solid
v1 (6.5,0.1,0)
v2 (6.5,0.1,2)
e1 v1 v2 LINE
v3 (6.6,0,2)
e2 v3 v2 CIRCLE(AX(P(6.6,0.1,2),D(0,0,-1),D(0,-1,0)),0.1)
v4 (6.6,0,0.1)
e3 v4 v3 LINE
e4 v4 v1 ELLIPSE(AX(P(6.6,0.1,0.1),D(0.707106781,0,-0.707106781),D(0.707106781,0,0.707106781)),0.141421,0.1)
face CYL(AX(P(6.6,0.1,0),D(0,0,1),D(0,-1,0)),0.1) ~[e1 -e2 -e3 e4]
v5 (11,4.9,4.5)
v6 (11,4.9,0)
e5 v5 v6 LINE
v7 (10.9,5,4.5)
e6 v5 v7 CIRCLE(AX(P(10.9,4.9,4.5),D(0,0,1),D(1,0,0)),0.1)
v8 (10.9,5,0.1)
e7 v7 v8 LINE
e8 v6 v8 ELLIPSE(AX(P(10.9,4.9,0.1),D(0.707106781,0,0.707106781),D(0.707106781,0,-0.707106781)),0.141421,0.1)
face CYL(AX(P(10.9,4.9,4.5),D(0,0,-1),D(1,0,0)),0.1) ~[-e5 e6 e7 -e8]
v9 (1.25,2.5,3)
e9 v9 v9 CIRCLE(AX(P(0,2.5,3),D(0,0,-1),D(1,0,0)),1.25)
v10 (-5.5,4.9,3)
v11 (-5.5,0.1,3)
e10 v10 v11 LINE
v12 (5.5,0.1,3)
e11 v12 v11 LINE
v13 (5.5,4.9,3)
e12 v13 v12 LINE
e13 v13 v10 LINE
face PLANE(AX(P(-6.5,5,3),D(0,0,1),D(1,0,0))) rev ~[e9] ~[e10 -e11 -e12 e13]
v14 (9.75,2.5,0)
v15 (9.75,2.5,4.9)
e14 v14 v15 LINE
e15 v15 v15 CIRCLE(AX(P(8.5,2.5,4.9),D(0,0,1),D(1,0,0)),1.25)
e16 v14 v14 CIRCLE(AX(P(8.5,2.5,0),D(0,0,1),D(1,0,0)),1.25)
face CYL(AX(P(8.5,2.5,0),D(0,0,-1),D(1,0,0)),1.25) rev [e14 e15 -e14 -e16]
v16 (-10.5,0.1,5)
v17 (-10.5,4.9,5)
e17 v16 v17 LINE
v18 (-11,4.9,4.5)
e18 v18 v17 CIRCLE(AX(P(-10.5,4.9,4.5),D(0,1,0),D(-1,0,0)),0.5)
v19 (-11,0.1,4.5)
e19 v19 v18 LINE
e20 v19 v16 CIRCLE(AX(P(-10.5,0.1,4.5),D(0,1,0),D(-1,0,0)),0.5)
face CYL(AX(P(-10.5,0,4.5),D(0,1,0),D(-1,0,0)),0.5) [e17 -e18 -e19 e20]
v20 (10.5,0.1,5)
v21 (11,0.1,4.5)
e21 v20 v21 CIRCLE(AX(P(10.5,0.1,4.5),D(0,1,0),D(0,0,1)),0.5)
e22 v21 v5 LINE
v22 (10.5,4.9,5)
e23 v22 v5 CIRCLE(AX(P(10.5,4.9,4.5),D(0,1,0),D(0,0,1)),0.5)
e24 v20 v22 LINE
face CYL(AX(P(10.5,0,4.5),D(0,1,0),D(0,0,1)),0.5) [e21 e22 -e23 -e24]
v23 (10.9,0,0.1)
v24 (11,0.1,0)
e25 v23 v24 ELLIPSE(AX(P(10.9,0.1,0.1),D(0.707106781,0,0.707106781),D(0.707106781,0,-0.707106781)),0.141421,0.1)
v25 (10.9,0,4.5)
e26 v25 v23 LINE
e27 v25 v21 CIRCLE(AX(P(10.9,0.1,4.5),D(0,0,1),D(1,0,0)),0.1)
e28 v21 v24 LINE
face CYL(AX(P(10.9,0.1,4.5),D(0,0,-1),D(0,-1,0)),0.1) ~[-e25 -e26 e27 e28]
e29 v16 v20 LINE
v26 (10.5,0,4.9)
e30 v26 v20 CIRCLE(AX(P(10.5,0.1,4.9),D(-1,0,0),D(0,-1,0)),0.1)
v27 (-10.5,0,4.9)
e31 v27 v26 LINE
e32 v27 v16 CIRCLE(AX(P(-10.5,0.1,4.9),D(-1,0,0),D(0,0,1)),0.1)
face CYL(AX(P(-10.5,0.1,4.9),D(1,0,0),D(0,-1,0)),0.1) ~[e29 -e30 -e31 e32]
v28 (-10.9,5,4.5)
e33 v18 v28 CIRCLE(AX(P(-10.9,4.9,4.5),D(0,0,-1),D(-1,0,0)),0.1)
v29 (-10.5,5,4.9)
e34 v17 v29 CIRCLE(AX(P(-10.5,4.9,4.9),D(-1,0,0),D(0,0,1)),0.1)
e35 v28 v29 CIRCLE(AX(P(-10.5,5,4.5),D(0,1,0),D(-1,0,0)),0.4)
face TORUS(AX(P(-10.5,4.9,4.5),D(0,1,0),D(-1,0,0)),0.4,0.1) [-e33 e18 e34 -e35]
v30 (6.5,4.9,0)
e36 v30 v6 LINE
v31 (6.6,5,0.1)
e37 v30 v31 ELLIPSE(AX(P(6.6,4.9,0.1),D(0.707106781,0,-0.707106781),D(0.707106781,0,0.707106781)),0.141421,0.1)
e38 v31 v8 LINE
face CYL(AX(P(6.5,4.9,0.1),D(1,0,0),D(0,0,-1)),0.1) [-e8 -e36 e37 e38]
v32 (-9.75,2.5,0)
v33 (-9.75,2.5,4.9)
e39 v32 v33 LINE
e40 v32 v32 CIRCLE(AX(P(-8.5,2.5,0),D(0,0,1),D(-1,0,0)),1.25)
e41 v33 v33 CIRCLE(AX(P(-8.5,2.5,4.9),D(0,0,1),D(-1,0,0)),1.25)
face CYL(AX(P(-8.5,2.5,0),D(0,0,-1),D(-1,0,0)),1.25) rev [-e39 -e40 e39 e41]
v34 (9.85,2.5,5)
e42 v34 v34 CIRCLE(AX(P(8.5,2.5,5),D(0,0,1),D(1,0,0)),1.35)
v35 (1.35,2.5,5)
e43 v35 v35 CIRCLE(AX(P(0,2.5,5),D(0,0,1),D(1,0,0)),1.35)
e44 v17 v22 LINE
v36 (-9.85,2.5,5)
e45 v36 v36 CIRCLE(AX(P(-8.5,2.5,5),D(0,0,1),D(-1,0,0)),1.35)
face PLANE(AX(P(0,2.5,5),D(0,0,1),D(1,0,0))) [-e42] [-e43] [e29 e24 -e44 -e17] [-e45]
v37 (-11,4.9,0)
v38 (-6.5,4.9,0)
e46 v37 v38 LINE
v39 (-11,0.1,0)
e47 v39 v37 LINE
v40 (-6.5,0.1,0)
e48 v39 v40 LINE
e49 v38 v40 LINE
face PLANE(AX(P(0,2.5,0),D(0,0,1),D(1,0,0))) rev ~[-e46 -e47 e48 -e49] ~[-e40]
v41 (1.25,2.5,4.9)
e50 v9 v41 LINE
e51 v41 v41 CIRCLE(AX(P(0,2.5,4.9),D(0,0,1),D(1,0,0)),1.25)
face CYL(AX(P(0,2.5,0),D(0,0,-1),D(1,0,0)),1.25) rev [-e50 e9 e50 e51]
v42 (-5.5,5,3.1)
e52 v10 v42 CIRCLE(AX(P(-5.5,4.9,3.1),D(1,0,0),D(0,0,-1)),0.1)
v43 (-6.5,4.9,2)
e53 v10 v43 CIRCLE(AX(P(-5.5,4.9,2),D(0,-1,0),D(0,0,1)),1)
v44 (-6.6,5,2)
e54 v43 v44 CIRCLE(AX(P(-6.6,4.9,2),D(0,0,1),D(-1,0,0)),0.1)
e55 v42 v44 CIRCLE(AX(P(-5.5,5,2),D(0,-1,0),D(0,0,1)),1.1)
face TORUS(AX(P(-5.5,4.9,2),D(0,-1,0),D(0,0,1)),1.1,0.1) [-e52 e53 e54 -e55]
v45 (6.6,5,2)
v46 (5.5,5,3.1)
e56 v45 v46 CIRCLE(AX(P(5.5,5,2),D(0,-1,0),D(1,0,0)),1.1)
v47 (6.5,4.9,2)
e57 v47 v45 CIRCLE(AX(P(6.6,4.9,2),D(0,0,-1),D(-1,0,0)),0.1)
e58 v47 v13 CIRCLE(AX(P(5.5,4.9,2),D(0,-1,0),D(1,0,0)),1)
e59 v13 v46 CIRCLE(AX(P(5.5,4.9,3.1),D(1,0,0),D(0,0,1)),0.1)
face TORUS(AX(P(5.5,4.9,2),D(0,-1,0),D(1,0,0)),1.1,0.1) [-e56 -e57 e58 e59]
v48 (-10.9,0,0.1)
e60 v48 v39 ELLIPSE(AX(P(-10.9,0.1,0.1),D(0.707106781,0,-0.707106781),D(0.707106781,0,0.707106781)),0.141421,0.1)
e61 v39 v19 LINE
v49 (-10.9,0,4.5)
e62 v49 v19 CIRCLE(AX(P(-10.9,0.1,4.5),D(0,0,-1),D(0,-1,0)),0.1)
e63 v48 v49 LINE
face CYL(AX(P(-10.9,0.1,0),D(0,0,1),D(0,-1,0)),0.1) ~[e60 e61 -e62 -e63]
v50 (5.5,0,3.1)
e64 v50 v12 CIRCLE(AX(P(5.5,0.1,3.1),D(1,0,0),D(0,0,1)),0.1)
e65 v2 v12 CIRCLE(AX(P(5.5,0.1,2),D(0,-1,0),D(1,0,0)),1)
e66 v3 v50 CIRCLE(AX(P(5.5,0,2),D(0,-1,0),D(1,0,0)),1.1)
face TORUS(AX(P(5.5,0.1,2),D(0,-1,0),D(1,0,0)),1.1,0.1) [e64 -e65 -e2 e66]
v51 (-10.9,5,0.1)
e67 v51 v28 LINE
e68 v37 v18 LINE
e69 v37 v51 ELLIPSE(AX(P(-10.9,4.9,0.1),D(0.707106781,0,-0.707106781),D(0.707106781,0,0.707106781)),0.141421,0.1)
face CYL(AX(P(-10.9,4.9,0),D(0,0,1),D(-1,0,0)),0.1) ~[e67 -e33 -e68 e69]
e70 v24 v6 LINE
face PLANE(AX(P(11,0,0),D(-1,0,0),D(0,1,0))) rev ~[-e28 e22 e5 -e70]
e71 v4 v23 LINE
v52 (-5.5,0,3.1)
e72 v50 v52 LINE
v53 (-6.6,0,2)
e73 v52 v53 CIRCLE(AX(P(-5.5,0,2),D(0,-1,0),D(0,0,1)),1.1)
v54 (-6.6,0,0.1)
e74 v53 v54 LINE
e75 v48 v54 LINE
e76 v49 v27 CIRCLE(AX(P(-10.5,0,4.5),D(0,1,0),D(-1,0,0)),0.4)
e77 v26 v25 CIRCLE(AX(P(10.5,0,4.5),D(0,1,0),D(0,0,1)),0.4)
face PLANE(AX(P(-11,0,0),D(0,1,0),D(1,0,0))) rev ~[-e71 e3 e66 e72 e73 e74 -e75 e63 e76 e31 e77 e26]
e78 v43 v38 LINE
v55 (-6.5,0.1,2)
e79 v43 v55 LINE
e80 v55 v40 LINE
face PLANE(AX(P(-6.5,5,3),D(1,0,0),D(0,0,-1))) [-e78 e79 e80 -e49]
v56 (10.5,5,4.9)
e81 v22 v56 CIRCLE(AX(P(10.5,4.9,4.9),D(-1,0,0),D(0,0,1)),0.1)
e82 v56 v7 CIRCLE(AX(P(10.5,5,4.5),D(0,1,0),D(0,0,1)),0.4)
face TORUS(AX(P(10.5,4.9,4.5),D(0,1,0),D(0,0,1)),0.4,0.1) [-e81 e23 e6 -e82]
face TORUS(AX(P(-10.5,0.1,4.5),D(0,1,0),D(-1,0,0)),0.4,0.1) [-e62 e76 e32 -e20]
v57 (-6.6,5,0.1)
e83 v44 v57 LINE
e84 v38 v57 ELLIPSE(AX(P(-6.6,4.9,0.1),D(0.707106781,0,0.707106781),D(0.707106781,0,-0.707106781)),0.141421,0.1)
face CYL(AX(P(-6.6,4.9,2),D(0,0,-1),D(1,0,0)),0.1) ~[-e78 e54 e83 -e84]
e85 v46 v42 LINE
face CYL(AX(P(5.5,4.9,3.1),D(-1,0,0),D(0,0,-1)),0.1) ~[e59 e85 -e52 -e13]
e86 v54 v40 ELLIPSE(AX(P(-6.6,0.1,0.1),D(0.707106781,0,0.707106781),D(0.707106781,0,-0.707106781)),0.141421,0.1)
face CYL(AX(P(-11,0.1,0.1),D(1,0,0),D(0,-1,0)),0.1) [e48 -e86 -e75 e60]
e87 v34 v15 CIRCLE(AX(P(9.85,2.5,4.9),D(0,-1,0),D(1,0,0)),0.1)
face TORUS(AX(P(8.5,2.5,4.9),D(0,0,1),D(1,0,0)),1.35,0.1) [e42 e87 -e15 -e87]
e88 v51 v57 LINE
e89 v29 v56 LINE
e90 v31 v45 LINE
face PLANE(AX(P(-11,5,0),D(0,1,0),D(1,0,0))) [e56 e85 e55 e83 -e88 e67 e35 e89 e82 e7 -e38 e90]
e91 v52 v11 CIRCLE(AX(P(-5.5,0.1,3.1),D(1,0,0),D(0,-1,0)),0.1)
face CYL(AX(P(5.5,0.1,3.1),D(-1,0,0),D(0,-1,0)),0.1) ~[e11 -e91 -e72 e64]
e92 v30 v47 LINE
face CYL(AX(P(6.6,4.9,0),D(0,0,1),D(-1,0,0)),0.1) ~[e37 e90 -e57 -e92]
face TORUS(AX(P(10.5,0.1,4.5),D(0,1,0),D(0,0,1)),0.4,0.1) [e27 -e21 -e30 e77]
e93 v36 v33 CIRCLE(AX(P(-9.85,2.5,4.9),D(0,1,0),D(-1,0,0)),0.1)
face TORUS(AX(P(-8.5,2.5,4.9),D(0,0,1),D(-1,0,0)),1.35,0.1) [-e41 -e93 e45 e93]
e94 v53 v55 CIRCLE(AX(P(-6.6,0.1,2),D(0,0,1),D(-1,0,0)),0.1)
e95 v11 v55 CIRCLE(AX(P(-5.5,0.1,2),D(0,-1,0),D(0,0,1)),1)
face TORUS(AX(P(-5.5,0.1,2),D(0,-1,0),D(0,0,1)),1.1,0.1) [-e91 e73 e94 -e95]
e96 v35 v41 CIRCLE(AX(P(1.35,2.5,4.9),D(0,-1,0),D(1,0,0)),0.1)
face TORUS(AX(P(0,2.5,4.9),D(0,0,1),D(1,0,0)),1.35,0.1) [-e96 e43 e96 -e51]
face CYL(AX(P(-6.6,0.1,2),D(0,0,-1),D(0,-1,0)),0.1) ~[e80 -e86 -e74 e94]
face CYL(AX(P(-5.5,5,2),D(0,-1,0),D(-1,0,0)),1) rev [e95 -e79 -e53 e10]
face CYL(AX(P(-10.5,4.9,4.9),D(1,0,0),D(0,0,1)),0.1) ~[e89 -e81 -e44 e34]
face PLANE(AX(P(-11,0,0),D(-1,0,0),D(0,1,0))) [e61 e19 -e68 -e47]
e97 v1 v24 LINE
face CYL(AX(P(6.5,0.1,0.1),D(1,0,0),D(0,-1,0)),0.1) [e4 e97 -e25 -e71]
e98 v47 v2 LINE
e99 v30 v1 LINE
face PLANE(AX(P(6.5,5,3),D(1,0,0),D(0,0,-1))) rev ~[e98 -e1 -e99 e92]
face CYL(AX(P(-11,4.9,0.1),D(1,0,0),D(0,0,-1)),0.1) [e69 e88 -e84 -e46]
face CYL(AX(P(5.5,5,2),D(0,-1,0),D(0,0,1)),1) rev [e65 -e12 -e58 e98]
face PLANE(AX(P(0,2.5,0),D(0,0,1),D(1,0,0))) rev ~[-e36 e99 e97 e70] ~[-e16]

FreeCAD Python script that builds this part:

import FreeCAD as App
import Part
import Sketcher
Q = App.Units.Quantity


def edges_at(feature, points):
    """Names of the edges that pass closest to the given points."""
    edges = feature.Shape.Edges
    near = lambda p: min(range(len(edges)), key=lambda i: edges[i].distToShape(Part.Vertex(*p))[0])
    return sorted({f"Edge{near(p) + 1}" for p in points})


def add_polygon(sketch, points):
    """Adds a closed chain of lines whose ends are joined by coincident constraints."""
    first, n = sketch.GeometryCount, len(points)
    for a, b in zip(points, points[1:] + points[:1]):
        sketch.addGeometry(Part.LineSegment(App.Vector(*a, 0), App.Vector(*b, 0)), False)
    for i in range(n):
        sketch.addConstraint(Sketcher.Constraint("Coincident", first + i, 2, first + (i + 1) % n, 1))

doc = App.newDocument("Part")
params = doc.addObject("Spreadsheet::Sheet", "Params")
for row, (alias, value) in enumerate([
    ("sketch1_diameter", "2.5 mm"),
    ("sketch1_width", "22 mm"),
    ("sketch1_height", "5 mm"),
    ("pad1_length", "5 mm"),
    ("sketch2_width", "13 mm"),
    ("sketch2_height", "3 mm"),
    ("fillet_radius", "1 mm"),
    ("fillet2_radius", "0.5 mm"),
    ("fillet3_radius", "0.1 mm"),
], start=1):
    params.set(f"A{row}", alias)
    params.set(f"B{row}", "=" + value)
    params.setAlias(f"B{row}", alias)

body = doc.addObject("PartDesign::Body", "Body")

sketch1 = body.newObject("Sketcher::SketchObject", "Sketch")
sketch1.AttachmentSupport = (doc.getObject("XY_Plane"), [""])
sketch1.MapMode = "FlatFace"
add_polygon(sketch1, [(-11, 5), (-11, 0), (11, 0), (11, 5)])
sketch1.addGeometry(Part.Circle(App.Vector(-8.5, 2.5, 0), App.Vector(0, 0, 1), 1.25), False)
sketch1.addGeometry(Part.Circle(App.Vector(0, 2.5, 0), App.Vector(0, 0, 1), 1.25), False)
sketch1.addGeometry(Part.Circle(App.Vector(8.5, 2.5, 0), App.Vector(0, 0, 1), 1.25), False)
sketch1.addConstraint(Sketcher.Constraint("Vertical", 0))
sketch1.addConstraint(Sketcher.Constraint("Horizontal", 1))
sketch1.addConstraint(Sketcher.Constraint("Vertical", 2))
sketch1.addConstraint(Sketcher.Constraint("Horizontal", 3))
sketch1.addConstraint(Sketcher.Constraint("Equal", 4, 5))
sketch1.addConstraint(Sketcher.Constraint("Equal", 5, 6))
sketch1.addConstraint(Sketcher.Constraint("Symmetric", 0, 2, 1, 2, -1, 1))
sketch1.addConstraint(Sketcher.Constraint("Symmetric", 4, 3, 6, 3, -2))
sketch1.addConstraint(Sketcher.Constraint("PointOnObject", 5, 3, -2))
sketch1.addConstraint(Sketcher.Constraint("Horizontal", 4, 3, 5, 3))
sketch1.addConstraint(Sketcher.Constraint("Diameter", 4, Q("2.5 mm")))
sketch1.addConstraint(Sketcher.Constraint("DistanceX", 1, 1, 1, 2, Q("22 mm")))
sketch1.addConstraint(Sketcher.Constraint("DistanceY", 0, 2, 0, 1, Q("5 mm")))
sketch1.addConstraint(Sketcher.Constraint("DistanceX", 4, 3, 6, 3, Q("17 mm")))
sketch1.addConstraint(Sketcher.Constraint("DistanceY", -1, 1, 4, 3, Q("2.5 mm")))
sketch1.setExpression("Constraints[14]", "Params.sketch1_diameter")
sketch1.setExpression("Constraints[15]", "Params.sketch1_width")
sketch1.setExpression("Constraints[16]", "Params.sketch1_height")
pad1 = body.newObject("PartDesign::Pad", "Pad")
pad1.Profile = sketch1
pad1.setExpression("Length", "Params.pad1_length")

sketch2 = body.newObject("Sketcher::SketchObject", "Sketch001")
sketch2.AttachmentSupport = (doc.getObject("XZ_Plane"), [""])
sketch2.MapMode = "FlatFace"
sketch2.AttachmentOffset = App.Placement(App.Vector(0, 0, -5), App.Rotation())
add_polygon(sketch2, [(-6.5, 0), (-6.5, 3), (6.5, 3), (6.5, 0)])
sketch2.addConstraint(Sketcher.Constraint("Vertical", 0))
sketch2.addConstraint(Sketcher.Constraint("Horizontal", 1))
sketch2.addConstraint(Sketcher.Constraint("Vertical", 2))
sketch2.addConstraint(Sketcher.Constraint("Horizontal", 3))
sketch2.addConstraint(Sketcher.Constraint("Symmetric", 2, 2, 3, 2, -1, 1))
sketch2.addConstraint(Sketcher.Constraint("DistanceX", 1, 1, 1, 2, Q("13 mm")))
sketch2.addConstraint(Sketcher.Constraint("DistanceY", 0, 1, 0, 2, Q("3 mm")))
sketch2.setExpression("Constraints[9]", "Params.sketch2_width")
sketch2.setExpression("Constraints[10]", "Params.sketch2_height")
pocket1 = body.newObject("PartDesign::Pocket", "Pocket")
pocket1.Profile = sketch2
pocket1.Type = "ThroughAll"
pocket1.Reversed = True
doc.recompute()

fillet = body.newObject("PartDesign::Fillet", "Fillet")
fillet.Base = (pocket1, edges_at(pocket1, [(-6.5, 2.5, 3), (6.5, 2.5, 3)]))
fillet.setExpression("Radius", "Params.fillet_radius")
doc.recompute()

fillet2 = body.newObject("PartDesign::Fillet", "Fillet001")
fillet2.Base = (fillet, edges_at(fillet, [(11, 2.5, 5), (-11, 2.5, 5)]))
fillet2.setExpression("Radius", "Params.fillet2_radius")
doc.recompute()

fillet3 = body.newObject("PartDesign::Fillet", "Fillet002")
fillet3.Base = (fillet2, edges_at(fillet2, [
    (-7.25, 2.5, 5),
    (7.25, 2.5, 5),
    (-1.25, 2.5, 5),
    (-8.75, 5, 0),
    (8.75, 0, 0),
    (-6.5, 0, 1),
    (-6.5, 5, 1),
    (6.5, 5, 1),
    (6.5, 0, 1),
    (0, 5, 3),
    (8.75, 5, 0),
    (0, 0, 3),
    (6.207, 5, 2.707),
    (6.207, 0, 2.707),
    (-6.207, 5, 2.707),
    (-6.207, 0, 2.707),
    (-8.75, 0, 0),
    (0, 0, 5),
    (0, 5, 5),
    (11, 0, 2.25),
    (-11, 0, 2.25),
    (10.854, 0, 4.854),
    (-10.854, 0, 4.854),
    (-11, 5, 2.25),
    (11, 5, 2.25),
    (10.854, 5, 4.854),
    (-10.854, 5, 4.854),
]))
fillet3.setExpression("Radius", "Params.fillet3_radius")

doc.recompute()
